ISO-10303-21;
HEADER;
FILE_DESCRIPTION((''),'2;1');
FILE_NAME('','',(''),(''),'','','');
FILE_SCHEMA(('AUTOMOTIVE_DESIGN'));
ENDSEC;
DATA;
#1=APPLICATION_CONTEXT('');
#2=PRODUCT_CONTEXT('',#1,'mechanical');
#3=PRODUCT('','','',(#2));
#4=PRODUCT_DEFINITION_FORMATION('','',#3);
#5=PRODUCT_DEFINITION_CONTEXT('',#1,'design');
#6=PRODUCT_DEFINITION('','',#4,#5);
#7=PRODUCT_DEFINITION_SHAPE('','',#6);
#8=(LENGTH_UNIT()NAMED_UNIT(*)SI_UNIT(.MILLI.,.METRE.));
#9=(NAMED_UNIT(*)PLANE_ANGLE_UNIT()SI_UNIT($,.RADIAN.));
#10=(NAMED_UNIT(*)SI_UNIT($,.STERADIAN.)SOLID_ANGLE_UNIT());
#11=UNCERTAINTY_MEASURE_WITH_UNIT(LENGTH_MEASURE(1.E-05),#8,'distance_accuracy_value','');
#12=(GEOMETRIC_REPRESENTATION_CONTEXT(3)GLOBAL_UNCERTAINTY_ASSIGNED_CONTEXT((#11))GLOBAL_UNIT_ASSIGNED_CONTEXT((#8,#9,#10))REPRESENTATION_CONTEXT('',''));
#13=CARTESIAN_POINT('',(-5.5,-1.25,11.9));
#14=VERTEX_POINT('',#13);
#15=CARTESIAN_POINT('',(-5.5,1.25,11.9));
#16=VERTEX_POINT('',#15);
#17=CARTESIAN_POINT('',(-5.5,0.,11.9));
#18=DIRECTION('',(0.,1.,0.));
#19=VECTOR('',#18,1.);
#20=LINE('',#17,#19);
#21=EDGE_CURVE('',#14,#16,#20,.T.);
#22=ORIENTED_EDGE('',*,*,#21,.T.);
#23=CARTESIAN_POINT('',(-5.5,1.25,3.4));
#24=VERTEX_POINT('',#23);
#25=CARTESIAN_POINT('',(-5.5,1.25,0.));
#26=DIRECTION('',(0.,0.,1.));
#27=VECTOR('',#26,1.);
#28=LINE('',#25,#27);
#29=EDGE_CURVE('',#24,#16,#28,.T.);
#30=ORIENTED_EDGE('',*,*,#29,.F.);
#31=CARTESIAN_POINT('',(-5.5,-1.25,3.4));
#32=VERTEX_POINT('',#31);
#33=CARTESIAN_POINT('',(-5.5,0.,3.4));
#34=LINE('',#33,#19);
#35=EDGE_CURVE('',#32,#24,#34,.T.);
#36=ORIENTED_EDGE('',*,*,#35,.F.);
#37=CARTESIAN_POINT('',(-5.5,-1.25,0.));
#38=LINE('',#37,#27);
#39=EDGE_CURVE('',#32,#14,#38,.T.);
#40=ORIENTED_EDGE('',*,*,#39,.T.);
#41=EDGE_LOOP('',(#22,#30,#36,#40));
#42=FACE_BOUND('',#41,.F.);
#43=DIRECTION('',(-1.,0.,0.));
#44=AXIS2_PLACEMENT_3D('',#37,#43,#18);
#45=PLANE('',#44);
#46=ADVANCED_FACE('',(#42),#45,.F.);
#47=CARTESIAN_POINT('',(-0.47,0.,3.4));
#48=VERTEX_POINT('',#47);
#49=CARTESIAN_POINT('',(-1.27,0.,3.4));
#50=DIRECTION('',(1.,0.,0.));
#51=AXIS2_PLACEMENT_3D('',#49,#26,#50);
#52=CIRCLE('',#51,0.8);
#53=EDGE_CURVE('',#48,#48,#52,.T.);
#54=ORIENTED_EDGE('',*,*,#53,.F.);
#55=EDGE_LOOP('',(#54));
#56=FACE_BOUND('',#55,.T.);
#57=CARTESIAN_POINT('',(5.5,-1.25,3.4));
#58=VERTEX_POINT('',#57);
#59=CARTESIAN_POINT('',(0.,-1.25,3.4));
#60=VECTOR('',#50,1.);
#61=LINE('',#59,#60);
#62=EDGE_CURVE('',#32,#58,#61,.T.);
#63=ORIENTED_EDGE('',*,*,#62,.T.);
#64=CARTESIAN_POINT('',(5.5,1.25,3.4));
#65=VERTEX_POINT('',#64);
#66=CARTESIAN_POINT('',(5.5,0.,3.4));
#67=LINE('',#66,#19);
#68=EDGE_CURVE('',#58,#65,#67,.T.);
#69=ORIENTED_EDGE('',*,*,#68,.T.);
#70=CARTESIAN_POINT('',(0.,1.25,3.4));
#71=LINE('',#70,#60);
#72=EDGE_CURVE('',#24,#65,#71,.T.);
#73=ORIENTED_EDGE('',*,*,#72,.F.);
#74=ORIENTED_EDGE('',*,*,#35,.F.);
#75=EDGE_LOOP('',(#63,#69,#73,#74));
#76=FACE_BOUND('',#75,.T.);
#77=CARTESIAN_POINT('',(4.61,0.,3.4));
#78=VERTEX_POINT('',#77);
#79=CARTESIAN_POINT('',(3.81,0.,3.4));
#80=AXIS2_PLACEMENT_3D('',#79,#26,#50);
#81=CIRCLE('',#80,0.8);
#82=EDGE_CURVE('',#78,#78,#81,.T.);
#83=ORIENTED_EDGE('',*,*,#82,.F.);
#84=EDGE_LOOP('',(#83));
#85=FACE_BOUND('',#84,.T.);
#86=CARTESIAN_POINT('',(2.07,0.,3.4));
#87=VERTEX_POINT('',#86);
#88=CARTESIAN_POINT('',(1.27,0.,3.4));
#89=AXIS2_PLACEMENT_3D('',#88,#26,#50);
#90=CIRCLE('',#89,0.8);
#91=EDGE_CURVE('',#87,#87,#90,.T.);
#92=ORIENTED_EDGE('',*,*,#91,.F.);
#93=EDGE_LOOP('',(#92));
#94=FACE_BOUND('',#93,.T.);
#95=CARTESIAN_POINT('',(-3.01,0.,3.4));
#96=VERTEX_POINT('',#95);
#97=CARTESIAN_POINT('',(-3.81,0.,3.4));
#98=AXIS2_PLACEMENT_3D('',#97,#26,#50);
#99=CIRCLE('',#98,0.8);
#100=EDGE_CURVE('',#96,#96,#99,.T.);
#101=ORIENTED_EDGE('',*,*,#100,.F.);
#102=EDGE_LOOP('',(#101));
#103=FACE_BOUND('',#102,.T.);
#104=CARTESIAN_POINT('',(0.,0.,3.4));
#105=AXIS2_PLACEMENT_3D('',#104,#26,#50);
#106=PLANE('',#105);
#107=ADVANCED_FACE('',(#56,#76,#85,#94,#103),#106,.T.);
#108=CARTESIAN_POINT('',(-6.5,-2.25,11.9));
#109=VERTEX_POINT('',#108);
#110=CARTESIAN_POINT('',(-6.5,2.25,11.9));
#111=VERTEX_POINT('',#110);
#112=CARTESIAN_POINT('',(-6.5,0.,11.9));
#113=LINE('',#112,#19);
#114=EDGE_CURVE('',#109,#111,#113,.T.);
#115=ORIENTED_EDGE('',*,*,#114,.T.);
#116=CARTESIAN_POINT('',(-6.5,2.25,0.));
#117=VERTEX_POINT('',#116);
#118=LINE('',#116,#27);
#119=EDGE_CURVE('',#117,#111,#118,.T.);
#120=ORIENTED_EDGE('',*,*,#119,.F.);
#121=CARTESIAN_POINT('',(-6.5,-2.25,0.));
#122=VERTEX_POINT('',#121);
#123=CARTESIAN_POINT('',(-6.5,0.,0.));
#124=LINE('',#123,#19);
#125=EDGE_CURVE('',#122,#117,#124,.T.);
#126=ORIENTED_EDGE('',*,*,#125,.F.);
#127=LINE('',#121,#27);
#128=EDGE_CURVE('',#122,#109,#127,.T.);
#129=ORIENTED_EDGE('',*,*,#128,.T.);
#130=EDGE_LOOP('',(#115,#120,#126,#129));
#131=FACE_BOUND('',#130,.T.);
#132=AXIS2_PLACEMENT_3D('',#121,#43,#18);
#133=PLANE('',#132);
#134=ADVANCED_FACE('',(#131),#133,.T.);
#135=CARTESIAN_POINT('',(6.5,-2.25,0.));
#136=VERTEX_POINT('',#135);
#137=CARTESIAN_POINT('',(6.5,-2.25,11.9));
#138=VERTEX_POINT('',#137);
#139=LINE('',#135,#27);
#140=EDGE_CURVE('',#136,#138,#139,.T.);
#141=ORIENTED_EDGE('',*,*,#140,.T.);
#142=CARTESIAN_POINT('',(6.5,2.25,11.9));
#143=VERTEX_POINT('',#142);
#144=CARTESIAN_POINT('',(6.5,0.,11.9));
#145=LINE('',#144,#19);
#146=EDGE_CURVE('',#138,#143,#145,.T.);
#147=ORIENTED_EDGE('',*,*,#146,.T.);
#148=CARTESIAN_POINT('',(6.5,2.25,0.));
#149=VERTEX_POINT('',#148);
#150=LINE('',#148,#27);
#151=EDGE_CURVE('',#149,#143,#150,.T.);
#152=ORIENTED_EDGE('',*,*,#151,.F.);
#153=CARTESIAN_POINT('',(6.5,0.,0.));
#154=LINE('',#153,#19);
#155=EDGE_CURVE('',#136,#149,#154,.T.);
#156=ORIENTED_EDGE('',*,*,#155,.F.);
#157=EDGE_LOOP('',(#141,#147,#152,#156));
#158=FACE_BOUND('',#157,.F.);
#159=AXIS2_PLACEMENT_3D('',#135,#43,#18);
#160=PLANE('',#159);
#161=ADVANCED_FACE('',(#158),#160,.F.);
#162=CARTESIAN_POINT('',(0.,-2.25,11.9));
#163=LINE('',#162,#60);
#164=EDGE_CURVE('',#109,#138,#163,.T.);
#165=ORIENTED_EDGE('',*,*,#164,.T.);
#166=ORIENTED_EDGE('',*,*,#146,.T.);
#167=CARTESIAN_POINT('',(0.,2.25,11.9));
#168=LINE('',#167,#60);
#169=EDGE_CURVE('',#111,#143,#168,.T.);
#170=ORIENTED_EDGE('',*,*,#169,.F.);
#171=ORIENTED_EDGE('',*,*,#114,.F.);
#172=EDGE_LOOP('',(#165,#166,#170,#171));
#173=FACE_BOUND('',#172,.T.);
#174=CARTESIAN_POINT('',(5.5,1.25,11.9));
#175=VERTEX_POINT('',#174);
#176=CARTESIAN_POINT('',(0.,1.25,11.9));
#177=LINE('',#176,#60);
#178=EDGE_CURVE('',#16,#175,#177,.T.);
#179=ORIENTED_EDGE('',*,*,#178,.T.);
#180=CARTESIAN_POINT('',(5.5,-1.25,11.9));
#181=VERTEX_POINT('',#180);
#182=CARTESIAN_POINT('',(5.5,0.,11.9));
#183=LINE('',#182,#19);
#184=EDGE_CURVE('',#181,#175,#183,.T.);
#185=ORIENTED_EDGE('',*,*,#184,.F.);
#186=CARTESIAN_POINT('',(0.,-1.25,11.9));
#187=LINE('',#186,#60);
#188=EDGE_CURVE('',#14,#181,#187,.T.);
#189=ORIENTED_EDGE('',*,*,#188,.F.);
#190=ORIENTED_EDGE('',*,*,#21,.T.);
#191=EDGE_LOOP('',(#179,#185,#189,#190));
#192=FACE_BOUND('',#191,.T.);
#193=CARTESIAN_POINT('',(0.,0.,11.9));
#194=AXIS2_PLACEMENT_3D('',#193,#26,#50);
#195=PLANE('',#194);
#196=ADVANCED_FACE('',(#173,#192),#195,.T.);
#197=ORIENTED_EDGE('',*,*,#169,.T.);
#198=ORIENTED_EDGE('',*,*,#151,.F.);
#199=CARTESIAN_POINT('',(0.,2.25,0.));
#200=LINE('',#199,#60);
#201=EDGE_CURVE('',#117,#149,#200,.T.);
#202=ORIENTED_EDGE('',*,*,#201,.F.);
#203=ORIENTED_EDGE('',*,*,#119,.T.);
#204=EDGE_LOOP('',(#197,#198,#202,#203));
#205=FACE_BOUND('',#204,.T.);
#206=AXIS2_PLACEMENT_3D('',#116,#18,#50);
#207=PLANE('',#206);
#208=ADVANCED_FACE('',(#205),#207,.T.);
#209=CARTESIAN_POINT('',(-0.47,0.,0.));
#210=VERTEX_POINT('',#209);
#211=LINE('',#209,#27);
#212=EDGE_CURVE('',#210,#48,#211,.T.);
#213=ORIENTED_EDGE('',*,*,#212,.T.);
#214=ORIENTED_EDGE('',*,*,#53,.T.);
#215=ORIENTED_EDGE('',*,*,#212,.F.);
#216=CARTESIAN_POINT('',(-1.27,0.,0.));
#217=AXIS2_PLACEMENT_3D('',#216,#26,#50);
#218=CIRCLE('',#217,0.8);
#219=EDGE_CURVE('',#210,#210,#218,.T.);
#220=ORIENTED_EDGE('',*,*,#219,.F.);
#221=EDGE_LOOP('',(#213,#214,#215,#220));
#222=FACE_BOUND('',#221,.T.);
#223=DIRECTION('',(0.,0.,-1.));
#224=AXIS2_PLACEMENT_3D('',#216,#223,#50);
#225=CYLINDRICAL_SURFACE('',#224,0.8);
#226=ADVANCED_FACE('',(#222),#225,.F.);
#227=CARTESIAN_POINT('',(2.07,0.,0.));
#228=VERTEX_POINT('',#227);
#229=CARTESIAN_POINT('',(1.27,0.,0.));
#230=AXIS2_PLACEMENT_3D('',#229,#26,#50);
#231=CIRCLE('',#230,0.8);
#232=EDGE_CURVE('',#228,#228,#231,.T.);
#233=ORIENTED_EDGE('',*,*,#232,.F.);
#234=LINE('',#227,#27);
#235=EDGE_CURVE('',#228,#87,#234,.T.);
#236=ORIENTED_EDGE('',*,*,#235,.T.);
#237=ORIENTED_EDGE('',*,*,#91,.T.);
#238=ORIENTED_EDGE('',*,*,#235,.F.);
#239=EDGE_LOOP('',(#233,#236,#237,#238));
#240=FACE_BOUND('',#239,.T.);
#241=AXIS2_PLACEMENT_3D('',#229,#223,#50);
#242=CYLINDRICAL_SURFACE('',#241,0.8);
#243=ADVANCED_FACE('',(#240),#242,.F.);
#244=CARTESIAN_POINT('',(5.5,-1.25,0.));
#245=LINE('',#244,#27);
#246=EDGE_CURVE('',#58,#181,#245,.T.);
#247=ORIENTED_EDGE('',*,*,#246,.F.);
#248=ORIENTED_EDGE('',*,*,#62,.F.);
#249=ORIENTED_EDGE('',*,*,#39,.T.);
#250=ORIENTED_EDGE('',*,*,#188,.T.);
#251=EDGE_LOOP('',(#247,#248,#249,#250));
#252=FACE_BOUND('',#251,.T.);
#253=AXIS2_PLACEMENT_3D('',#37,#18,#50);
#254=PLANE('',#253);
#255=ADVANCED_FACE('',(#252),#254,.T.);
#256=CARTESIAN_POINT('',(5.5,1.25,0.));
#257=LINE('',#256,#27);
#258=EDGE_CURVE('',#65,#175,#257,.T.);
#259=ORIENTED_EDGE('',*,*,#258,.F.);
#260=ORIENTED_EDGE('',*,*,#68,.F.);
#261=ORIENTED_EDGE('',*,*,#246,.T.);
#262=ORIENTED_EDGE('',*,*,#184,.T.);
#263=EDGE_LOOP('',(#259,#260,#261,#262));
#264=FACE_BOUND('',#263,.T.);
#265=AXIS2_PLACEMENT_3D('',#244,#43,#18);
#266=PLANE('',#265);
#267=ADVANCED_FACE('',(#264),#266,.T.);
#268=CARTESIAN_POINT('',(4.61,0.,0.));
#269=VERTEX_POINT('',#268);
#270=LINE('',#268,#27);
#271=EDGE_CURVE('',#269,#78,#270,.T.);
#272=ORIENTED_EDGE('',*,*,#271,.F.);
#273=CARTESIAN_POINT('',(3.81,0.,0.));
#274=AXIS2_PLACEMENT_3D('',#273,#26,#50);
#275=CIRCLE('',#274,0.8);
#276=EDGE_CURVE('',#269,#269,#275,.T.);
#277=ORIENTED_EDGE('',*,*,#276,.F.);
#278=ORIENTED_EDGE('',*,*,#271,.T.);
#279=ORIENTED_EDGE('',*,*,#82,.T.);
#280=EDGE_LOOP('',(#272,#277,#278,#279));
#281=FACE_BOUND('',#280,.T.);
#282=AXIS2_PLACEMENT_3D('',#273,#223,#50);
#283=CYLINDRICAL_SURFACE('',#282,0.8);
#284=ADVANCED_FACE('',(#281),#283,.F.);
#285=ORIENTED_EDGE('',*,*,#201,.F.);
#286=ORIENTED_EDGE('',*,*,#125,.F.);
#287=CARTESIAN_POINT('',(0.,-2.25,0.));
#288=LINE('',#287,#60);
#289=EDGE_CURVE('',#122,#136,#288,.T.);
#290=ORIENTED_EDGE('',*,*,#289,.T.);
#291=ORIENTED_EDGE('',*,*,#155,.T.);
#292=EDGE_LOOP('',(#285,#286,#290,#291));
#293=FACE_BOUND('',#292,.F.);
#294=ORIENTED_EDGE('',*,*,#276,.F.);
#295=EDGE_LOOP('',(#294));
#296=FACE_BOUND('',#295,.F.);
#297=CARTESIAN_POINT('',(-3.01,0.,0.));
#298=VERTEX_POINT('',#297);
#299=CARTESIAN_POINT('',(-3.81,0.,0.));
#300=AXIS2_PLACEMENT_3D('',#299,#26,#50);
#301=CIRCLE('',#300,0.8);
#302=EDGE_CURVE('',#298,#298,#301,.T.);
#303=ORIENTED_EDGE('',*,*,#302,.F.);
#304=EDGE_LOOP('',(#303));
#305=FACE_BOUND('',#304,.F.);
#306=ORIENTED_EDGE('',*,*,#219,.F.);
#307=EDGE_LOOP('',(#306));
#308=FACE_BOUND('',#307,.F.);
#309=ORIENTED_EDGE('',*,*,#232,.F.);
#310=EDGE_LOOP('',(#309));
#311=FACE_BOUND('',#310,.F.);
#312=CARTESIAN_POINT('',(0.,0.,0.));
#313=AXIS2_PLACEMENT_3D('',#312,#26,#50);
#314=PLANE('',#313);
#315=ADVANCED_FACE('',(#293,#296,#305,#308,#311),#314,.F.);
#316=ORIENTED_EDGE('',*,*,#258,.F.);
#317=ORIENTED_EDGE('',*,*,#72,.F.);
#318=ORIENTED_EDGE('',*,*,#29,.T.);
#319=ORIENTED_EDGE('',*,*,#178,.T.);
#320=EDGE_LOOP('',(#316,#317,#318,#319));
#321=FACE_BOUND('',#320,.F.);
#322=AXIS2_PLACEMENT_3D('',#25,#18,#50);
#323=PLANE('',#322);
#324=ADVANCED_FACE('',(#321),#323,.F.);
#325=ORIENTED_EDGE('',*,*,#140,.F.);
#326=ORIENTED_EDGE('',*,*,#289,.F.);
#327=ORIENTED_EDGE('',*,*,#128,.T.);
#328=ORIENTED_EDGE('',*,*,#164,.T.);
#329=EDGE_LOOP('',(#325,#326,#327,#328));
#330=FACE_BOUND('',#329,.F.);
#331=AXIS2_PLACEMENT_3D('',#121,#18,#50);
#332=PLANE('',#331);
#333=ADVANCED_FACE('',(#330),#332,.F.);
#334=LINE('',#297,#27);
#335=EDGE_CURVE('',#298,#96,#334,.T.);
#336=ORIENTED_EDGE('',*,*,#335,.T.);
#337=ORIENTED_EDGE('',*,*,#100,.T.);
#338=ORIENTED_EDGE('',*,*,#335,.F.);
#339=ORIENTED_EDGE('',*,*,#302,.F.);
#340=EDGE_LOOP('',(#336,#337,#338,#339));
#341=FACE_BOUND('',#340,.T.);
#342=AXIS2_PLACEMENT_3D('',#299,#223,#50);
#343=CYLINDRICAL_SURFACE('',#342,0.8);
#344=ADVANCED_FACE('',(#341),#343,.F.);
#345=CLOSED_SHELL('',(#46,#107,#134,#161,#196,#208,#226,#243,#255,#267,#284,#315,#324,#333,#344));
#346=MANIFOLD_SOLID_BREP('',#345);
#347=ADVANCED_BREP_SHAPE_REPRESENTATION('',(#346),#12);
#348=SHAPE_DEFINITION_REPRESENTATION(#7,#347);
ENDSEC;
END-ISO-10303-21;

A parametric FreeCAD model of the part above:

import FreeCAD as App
import Part
import Sketcher

V = App.Vector
Q = App.Units.Quantity


def add_polygon(sketch, points):
    """Adds a closed chain of lines whose ends are joined by coincident constraints."""
    first, n = sketch.GeometryCount, len(points)
    for a, b in zip(points, points[1:] + points[:1]):
        sketch.addGeometry(Part.LineSegment(App.Vector(*a, 0), App.Vector(*b, 0)), False)
    for i in range(n):
        sketch.addConstraint(Sketcher.Constraint("Coincident", first + i, 2, first + (i + 1) % n, 1))

doc = App.newDocument("Part")
params = doc.addObject("Spreadsheet::Sheet", "Params")
for row, (alias, value) in enumerate([
    ("sketch1_diameter", "1.6 mm"),
    ("sketch1_width", "11 mm"),
    ("sketch1_height", "2.5 mm"),
    ("pad1_length", "3.4 mm"),
    ("sketch2_width", "13 mm"),
    ("sketch2_width2", "11 mm"),
    ("sketch2_height", "4.5 mm"),
    ("sketch2_height2", "2.5 mm"),
    ("pad2_length", "11.9 mm"),
], start=1):
    params.set(f"A{row}", alias)
    params.set(f"B{row}", "=" + value)
    params.setAlias(f"B{row}", alias)

body = doc.addObject("PartDesign::Body", "Body")

sketch1 = doc.addObject("Sketcher::SketchObject", "Sketch")
body.addObject(sketch1)
sketch1.AttachmentSupport = (doc.XY_Plane, [""])
sketch1.MapMode = "FlatFace"
add_polygon(sketch1, [(-5.5, 1.2), (-5.5, -1.2), (5.5, -1.2), (5.5, 1.2)])
sketch1.addGeometry(Part.Circle(V(-3.8, 0, 0), V(0, 0, 1), 0.8), False)
sketch1.addGeometry(Part.Circle(V(-1.3, 0, 0), V(0, 0, 1), 0.8), False)
sketch1.addGeometry(Part.Circle(V(1.3, 0, 0), V(0, 0, 1), 0.8), False)
sketch1.addGeometry(Part.Circle(V(3.8, 0, 0), V(0, 0, 1), 0.8), False)
sketch1.addConstraint([
    Sketcher.Constraint("Vertical", 0),
    Sketcher.Constraint("Horizontal", 1),
    Sketcher.Constraint("Vertical", 2),
    Sketcher.Constraint("Horizontal", 3),
    Sketcher.Constraint("Equal", 4, 5),
    Sketcher.Constraint("Equal", 5, 6),
    Sketcher.Constraint("Equal", 6, 7),
    Sketcher.Constraint("Symmetric", 5, 3, 6, 3, -1, 1),
    Sketcher.Constraint("Symmetric", 4, 3, 7, 3, -1, 1),
    Sketcher.Constraint("Symmetric", 0, 2, 2, 2, -1, 1),
    Sketcher.Constraint("PointOnObject", 4, 3, -1),
    Sketcher.Constraint("PointOnObject", 5, 3, -1),
    Sketcher.Constraint("Diameter", 4, Q("1.6 mm")),
    Sketcher.Constraint("DistanceX", 1, 1, 1, 2, Q("11 mm")),
    Sketcher.Constraint("DistanceY", 0, 2, 0, 1, Q("2.5 mm")),
    Sketcher.Constraint("DistanceX", 4, 3, -1, 1, Q("3.81 mm")),
    Sketcher.Constraint("DistanceX", 5, 3, -1, 1, Q("1.27 mm")),
])
sketch1.setExpression("Constraints[16]", "Params.sketch1_diameter")
sketch1.setExpression("Constraints[17]", "Params.sketch1_width")
sketch1.setExpression("Constraints[18]", "Params.sketch1_height")
pad1 = doc.addObject("PartDesign::Pad", "Pad")
body.addObject(pad1)
pad1.Profile = sketch1
pad1.setExpression("Length", "Params.pad1_length")

sketch2 = doc.addObject("Sketcher::SketchObject", "Sketch001")
body.addObject(sketch2)
sketch2.AttachmentSupport = (doc.XY_Plane, [""])
sketch2.MapMode = "FlatFace"
add_polygon(sketch2, [(-6.5, 2.2), (-6.5, -2.2), (6.5, -2.2), (6.5, 2.2)])
add_polygon(sketch2, [(5.5, -1.2), (-5.5, -1.2), (-5.5, 1.2), (5.5, 1.2)])
sketch2.addConstraint([
    Sketcher.Constraint("Vertical", 0),
    Sketcher.Constraint("Horizontal", 1),
    Sketcher.Constraint("Vertical", 2),
    Sketcher.Constraint("Horizontal", 3),
    Sketcher.Constraint("Horizontal", 4),
    Sketcher.Constraint("Vertical", 5),
    Sketcher.Constraint("Horizontal", 6),
    Sketcher.Constraint("Vertical", 7),
    Sketcher.Constraint("Symmetric", 0, 2, 2, 2, -1, 1),
    Sketcher.Constraint("Symmetric", 4, 2, 6, 2, -1, 1),
    Sketcher.Constraint("DistanceX", 1, 1, 1, 2, Q("13 mm")),
    Sketcher.Constraint("DistanceX", 4, 2, 4, 1, Q("11 mm")),
    Sketcher.Constraint("DistanceY", 0, 2, 0, 1, Q("4.5 mm")),
    Sketcher.Constraint("DistanceY", 5, 1, 5, 2, Q("2.5 mm")),
])
sketch2.setExpression("Constraints[18]", "Params.sketch2_width")
sketch2.setExpression("Constraints[19]", "Params.sketch2_width2")
sketch2.setExpression("Constraints[20]", "Params.sketch2_height")
sketch2.setExpression("Constraints[21]", "Params.sketch2_height2")
pad2 = doc.addObject("PartDesign::Pad", "Pad001")
body.addObject(pad2)
pad2.Profile = sketch2
pad2.setExpression("Length", "Params.pad2_length")

doc.recompute()
